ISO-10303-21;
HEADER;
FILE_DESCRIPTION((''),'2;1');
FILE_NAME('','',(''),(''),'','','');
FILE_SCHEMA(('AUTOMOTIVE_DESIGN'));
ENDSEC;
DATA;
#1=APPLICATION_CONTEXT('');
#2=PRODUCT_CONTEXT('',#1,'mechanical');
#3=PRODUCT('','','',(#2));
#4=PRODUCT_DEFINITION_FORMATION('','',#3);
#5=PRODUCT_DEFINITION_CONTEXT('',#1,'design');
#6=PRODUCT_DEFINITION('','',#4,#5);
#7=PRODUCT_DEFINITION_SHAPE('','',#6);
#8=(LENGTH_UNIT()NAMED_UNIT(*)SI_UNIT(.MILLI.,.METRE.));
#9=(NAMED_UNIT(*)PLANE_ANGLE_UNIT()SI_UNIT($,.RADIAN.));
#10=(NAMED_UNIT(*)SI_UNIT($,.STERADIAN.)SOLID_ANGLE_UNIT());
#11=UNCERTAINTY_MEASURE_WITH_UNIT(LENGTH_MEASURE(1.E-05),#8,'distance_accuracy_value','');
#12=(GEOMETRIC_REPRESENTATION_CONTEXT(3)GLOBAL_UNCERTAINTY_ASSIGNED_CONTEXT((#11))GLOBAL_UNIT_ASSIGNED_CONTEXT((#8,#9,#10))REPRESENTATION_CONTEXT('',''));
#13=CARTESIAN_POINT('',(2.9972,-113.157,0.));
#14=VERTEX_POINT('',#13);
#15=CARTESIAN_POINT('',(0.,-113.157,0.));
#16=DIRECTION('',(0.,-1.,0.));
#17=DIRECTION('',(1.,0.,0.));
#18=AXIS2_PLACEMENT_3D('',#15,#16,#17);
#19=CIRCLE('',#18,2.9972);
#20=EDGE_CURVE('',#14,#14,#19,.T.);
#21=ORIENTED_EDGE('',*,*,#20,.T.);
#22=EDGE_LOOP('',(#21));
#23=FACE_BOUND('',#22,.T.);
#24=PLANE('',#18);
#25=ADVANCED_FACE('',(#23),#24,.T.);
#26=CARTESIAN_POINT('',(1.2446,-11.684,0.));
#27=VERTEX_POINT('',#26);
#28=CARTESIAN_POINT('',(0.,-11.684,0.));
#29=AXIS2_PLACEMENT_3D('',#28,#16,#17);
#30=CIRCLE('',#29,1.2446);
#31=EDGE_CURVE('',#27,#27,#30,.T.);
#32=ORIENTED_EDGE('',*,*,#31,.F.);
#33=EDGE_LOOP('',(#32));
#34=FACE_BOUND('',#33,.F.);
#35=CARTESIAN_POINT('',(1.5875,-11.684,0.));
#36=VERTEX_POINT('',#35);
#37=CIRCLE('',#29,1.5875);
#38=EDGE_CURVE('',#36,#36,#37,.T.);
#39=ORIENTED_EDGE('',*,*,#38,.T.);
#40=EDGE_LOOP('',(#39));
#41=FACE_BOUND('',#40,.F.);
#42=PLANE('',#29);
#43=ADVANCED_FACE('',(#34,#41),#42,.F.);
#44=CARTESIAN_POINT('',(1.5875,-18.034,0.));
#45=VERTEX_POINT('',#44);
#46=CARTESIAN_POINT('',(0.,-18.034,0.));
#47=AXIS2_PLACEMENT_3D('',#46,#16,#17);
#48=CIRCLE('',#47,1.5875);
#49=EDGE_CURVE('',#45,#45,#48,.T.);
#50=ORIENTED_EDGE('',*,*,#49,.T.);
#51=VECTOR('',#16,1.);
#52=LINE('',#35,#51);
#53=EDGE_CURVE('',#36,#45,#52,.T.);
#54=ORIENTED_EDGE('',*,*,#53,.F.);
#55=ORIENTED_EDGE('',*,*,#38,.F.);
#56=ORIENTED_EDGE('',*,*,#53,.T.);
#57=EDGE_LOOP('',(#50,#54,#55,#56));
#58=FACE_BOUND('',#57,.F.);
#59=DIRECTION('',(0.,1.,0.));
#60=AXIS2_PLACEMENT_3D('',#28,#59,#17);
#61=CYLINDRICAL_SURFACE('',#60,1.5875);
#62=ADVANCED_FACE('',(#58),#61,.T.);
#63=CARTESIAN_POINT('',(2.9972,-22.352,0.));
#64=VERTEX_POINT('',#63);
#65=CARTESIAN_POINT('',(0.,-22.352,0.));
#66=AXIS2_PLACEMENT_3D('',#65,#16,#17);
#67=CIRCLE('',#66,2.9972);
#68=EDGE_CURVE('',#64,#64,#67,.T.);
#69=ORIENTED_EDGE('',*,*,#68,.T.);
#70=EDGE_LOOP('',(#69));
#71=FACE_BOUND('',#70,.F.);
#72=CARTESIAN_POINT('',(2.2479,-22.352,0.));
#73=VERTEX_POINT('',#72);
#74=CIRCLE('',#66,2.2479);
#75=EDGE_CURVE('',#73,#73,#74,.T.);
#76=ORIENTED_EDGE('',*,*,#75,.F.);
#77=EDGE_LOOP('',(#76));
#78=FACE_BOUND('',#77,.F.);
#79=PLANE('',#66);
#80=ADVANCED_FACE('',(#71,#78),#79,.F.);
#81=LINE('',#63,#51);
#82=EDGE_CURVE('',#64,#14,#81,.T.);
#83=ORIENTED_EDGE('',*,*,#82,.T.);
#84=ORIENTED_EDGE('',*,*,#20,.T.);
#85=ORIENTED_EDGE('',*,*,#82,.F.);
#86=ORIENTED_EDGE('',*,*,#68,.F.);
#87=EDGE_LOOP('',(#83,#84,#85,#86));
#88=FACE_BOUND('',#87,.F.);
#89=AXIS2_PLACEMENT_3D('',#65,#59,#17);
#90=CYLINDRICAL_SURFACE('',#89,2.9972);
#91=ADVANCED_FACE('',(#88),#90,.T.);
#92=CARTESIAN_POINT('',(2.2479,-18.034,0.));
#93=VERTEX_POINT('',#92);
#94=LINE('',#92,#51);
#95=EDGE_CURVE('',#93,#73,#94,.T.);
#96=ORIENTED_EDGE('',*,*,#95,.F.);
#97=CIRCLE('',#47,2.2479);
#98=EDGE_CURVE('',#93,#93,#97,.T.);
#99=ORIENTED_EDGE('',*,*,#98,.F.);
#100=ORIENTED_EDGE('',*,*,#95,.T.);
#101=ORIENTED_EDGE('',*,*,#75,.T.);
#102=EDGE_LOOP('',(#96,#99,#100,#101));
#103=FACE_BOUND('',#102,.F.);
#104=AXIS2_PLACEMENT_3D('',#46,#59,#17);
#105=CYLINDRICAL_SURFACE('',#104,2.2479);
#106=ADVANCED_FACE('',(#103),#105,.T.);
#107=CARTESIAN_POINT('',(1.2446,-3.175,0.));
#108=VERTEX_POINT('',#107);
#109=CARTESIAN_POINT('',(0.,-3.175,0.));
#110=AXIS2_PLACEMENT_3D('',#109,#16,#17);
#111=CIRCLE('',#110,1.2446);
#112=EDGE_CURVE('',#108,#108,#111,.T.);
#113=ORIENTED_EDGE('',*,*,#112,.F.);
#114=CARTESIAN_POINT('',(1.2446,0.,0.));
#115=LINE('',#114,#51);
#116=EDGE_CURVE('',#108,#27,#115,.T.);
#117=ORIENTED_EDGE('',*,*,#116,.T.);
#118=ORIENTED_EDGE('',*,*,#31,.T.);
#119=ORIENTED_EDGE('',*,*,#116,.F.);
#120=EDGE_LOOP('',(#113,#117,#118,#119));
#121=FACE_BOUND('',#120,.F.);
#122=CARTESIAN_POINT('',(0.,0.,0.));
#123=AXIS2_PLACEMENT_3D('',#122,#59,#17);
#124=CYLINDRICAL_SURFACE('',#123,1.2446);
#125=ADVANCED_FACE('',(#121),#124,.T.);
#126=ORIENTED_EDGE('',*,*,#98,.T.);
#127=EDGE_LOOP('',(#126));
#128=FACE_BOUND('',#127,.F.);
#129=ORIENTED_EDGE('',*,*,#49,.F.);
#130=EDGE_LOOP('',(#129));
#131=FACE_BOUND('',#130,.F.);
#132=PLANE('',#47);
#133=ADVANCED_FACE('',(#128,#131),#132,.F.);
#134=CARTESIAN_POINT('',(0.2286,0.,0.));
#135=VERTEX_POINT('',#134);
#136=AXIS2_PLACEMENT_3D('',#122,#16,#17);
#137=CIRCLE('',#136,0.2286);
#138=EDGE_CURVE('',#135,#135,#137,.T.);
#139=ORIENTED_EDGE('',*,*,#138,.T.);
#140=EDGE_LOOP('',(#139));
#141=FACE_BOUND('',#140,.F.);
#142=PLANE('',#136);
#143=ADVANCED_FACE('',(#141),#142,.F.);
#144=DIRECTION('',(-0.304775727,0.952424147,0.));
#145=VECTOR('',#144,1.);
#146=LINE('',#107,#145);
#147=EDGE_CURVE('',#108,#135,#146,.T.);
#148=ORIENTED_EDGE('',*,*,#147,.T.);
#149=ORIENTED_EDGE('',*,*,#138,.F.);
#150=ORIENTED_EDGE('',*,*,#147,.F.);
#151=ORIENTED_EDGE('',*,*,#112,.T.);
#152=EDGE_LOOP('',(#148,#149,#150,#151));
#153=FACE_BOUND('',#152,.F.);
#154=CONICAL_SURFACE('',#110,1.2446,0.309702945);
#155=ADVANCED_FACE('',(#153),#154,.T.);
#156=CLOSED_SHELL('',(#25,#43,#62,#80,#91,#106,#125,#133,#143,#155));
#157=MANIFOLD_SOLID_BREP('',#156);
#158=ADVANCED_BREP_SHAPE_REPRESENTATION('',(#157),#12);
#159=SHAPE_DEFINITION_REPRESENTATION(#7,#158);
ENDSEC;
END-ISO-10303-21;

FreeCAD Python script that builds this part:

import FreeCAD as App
import Part
import Sketcher

V = App.Vector
Q = App.Units.Quantity


def edges_at(feature, points):
    """Names of the edges that pass closest to the given points."""
    edges = feature.Shape.Edges
    near = lambda p: min(range(len(edges)), key=lambda i: edges[i].distToShape(Part.Vertex(*p))[0])
    return sorted({f"Edge{near(p) + 1}" for p in points})

doc = App.newDocument("Part")
body = doc.addObject("PartDesign::Body", "Body")

sketch1 = doc.addObject("Sketcher::SketchObject", "Sketch")
body.addObject(sketch1)
sketch1.AttachmentSupport = (doc.XZ_Plane, [""])
sketch1.MapMode = "FlatFace"
sketch1.addGeometry(Part.Circle(V(0, 0, 0), V(0, 0, 1), 1.2), False)
sketch1.addConstraint([
    Sketcher.Constraint("Coincident", 0, 3, -1, 1),
    Sketcher.Constraint("Diameter", 0, Q("0.098 in")),
])
pad1 = doc.addObject("PartDesign::Pad", "Pad")
body.addObject(pad1)
pad1.Profile = sketch1
pad1.Length = Q("0.46 in")
doc.recompute()

chamfer = doc.addObject("PartDesign::Chamfer", "Chamfer")
body.addObject(chamfer)
chamfer.Base = (pad1, edges_at(pad1, [(-1.245, 0, 0)]))
chamfer.ChamferType = "Two distances"
chamfer.Size = Q("0.125 in")
chamfer.Size2 = Q("0.04 in")

sketch2 = doc.addObject("Sketcher::SketchObject", "Sketch001")
body.addObject(sketch2)
sketch2.AttachmentSupport = (doc.XZ_Plane, [""])
sketch2.MapMode = "FlatFace"
sketch2.AttachmentOffset = App.Placement(V(0, 0, 0.46 * 25.4), App.Rotation())
sketch2.addGeometry(Part.Circle(V(0, 0, 0), V(0, 0, 1), 1.6), False)
sketch2.addConstraint([
    Sketcher.Constraint("Coincident", 0, 3, -1, 1),
    Sketcher.Constraint("Diameter", 0, Q("0.125 in")),
])
pad2 = doc.addObject("PartDesign::Pad", "Pad001")
body.addObject(pad2)
pad2.Profile = sketch2
pad2.Length = Q("0.25 in")

sketch3 = doc.addObject("Sketcher::SketchObject", "Sketch002")
body.addObject(sketch3)
sketch3.AttachmentSupport = (doc.XZ_Plane, [""])
sketch3.MapMode = "FlatFace"
sketch3.AttachmentOffset = App.Placement(V(0, 0, 0.71 * 25.4), App.Rotation())
sketch3.addGeometry(Part.Circle(V(0, 0, 0), V(0, 0, 1), 2.2), False)
sketch3.addConstraint([
    Sketcher.Constraint("Coincident", 0, 3, -1, 1),
    Sketcher.Constraint("Diameter", 0, Q("0.177 in")),
])
pad3 = doc.addObject("PartDesign::Pad", "Pad002")
body.addObject(pad3)
pad3.Profile = sketch3
pad3.Length = Q("0.17 in")

sketch4 = doc.addObject("Sketcher::SketchObject", "Sketch003")
body.addObject(sketch4)
sketch4.AttachmentSupport = (doc.XZ_Plane, [""])
sketch4.MapMode = "FlatFace"
sketch4.AttachmentOffset = App.Placement(V(0, 0, 0.88 * 25.4), App.Rotation())
sketch4.addGeometry(Part.Circle(V(0, 0, 0), V(0, 0, 1), 3), False)
sketch4.addConstraint([
    Sketcher.Constraint("Coincident", 0, 3, -1, 1),
    Sketcher.Constraint("Diameter", 0, Q("0.236 in")),
])
pad4 = doc.addObject("PartDesign::Pad", "Pad003")
body.addObject(pad4)
pad4.Profile = sketch4
pad4.Length = Q("3.575 in")

doc.recompute()
